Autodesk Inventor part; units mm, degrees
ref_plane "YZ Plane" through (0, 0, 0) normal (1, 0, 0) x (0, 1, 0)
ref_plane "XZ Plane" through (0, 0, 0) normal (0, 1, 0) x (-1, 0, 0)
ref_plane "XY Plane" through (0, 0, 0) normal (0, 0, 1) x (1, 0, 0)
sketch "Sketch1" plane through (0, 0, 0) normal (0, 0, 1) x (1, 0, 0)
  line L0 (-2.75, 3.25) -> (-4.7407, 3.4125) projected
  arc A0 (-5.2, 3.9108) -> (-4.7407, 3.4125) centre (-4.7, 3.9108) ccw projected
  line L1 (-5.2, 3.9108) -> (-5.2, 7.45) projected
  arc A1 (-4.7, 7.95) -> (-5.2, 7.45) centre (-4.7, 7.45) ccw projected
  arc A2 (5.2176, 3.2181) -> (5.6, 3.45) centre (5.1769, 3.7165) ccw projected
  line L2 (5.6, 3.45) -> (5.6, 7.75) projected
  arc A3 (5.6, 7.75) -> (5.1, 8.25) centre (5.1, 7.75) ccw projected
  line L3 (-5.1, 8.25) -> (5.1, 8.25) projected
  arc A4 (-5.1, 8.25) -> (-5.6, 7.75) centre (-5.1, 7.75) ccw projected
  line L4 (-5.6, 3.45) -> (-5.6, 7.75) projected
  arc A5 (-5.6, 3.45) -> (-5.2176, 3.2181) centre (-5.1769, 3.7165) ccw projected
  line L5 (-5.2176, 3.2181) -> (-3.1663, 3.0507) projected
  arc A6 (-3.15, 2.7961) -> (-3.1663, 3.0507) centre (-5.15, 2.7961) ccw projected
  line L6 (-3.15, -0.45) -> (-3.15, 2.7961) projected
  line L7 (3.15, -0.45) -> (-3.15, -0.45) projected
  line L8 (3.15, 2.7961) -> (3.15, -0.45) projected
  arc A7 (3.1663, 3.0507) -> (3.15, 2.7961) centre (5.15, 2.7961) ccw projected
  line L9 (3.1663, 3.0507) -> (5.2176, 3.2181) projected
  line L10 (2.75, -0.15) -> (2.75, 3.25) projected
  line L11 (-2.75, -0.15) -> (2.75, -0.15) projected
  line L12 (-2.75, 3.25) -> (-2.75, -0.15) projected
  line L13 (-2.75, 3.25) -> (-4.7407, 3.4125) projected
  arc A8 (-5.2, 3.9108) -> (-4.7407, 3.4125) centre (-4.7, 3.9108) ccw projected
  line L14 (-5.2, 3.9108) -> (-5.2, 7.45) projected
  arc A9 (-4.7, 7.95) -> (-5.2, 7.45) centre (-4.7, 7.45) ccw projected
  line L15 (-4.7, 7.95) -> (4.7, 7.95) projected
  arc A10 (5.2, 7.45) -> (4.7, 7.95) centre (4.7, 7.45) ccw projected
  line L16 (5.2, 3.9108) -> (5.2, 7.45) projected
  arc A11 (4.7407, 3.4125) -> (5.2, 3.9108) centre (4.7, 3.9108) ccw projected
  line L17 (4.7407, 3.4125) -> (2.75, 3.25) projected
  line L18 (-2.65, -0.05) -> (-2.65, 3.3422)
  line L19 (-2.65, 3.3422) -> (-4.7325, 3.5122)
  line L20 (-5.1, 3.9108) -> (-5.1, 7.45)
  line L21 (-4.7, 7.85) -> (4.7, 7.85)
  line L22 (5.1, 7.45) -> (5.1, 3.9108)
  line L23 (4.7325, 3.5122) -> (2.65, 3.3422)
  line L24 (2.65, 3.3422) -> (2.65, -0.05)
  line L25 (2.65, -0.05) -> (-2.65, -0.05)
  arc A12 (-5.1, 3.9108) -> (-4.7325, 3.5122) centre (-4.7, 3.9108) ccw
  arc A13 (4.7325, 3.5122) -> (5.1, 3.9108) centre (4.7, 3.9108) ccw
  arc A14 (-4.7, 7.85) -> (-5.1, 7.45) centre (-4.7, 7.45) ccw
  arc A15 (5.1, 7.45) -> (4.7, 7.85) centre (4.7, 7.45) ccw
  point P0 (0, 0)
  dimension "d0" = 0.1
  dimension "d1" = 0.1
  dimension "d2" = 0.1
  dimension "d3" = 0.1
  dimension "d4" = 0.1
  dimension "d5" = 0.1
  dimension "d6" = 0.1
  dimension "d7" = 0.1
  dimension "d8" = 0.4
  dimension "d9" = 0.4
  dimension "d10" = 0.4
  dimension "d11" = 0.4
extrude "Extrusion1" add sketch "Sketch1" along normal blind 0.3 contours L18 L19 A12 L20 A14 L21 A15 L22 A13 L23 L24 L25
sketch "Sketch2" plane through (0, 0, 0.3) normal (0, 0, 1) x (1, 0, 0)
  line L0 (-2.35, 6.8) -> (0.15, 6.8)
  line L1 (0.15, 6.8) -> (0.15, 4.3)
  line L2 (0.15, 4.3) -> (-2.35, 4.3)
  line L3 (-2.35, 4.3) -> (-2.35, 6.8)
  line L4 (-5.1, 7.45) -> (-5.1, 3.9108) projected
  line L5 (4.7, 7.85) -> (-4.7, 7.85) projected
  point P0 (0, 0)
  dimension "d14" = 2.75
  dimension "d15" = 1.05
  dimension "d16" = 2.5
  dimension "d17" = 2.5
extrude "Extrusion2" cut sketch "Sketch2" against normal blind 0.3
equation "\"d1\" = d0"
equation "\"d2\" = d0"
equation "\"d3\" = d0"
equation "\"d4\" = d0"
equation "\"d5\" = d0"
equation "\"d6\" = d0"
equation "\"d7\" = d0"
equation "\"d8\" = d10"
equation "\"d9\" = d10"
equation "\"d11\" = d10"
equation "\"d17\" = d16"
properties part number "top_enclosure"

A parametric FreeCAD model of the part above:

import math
import FreeCAD as App
import Part
import Sketcher
Q = App.Units.Quantity


def add_polygon(sketch, points):
    """Adds a closed chain of lines whose ends are joined by coincident constraints."""
    first, n = sketch.GeometryCount, len(points)
    for a, b in zip(points, points[1:] + points[:1]):
        sketch.addGeometry(Part.LineSegment(App.Vector(*a, 0), App.Vector(*b, 0)), False)
    for i in range(n):
        sketch.addConstraint(Sketcher.Constraint("Coincident", first + i, 2, first + (i + 1) % n, 1))

doc = App.newDocument("Part")
params = doc.addObject("Spreadsheet::Sheet", "Params")
for row, (alias, value) in enumerate([
    ("sketch1_radius", "0.4 mm"),
    ("sketch1_width", "5.3 mm"),
    ("sketch1_width2", "9.4 mm"),
    ("pad1_length", "0.3 mm"),
    ("sketch2_width", "2.5 mm"),
    ("pocket1_length", "0.3 mm"),
], start=1):
    params.set(f"A{row}", alias)
    params.set(f"B{row}", "=" + value)
    params.setAlias(f"B{row}", alias)

body = doc.addObject("PartDesign::Body", "Body")

# Sketch on XY plane
sketch1 = body.newObject("Sketcher::SketchObject", "Sketch")
sketch1.AttachmentSupport = (doc.getObject("XY_Plane"), [""])
sketch1.MapMode = "FlatFace"
sketch1.addGeometry([
    Part.LineSegment(App.Vector(-2.65, 3.3422, 0), App.Vector(-2.65, -0.05, 0)),  # 0
    Part.LineSegment(App.Vector(-2.65, -0.05, 0), App.Vector(2.65, -0.05, 0)),  # 1
    Part.LineSegment(App.Vector(2.65, -0.05, 0), App.Vector(2.65, 3.3422, 0)),  # 2
    Part.LineSegment(App.Vector(2.65, 3.3422, 0), App.Vector(4.7325, 3.5122, 0)),  # 3
    Part.ArcOfCircle(Part.Circle(App.Vector(4.7, 3.9108, 0), App.Vector(0, 0, 1), 0.399923), math.radians(-85.338678), math.radians(0)),  # 4
    Part.LineSegment(App.Vector(5.1, 3.9108, 0), App.Vector(5.1, 7.45, 0)),  # 5
    Part.ArcOfCircle(Part.Circle(App.Vector(4.7, 7.45, 0), App.Vector(0, 0, 1), 0.4), math.radians(0), math.radians(90)),  # 6
    Part.LineSegment(App.Vector(4.7, 7.85, 0), App.Vector(-4.7, 7.85, 0)),  # 7
    Part.ArcOfCircle(Part.Circle(App.Vector(-4.7, 7.45, 0), App.Vector(0, 0, 1), 0.4), math.radians(90), math.radians(180)),  # 8
    Part.LineSegment(App.Vector(-5.1, 7.45, 0), App.Vector(-5.1, 3.9108, 0)),  # 9
    Part.ArcOfCircle(Part.Circle(App.Vector(-4.7, 3.9108, 0), App.Vector(0, 0, 1), 0.4), math.radians(180), math.radians(265.338678)),  # 10
    Part.LineSegment(App.Vector(-4.7325, 3.5122, 0), App.Vector(-2.65, 3.3422, 0)),  # 11
], False)
sketch1.addConstraint([
    Sketcher.Constraint("Coincident", 0, 2, 1, 1),
    Sketcher.Constraint("Coincident", 1, 2, 2, 1),
    Sketcher.Constraint("Coincident", 2, 2, 3, 1),
    Sketcher.Constraint("Tangent", 3, 2, 4, 1),
    Sketcher.Constraint("Tangent", 4, 2, 5, 1),
    Sketcher.Constraint("Tangent", 5, 2, 6, 1),
    Sketcher.Constraint("Tangent", 6, 2, 7, 1),
    Sketcher.Constraint("Tangent", 7, 2, 8, 1),
    Sketcher.Constraint("Tangent", 8, 2, 9, 1),
    Sketcher.Constraint("Tangent", 9, 2, 10, 1),
    Sketcher.Constraint("Tangent", 10, 2, 11, 1),
    Sketcher.Constraint("Coincident", 11, 2, 0, 1),
    Sketcher.Constraint("Vertical", 0),
    Sketcher.Constraint("Horizontal", 1),
    Sketcher.Constraint("Vertical", 2),
    Sketcher.Constraint("Vertical", 5),
    Sketcher.Constraint("Horizontal", 7),
    Sketcher.Constraint("Vertical", 9),
    Sketcher.Constraint("Equal", 4, 6),
    Sketcher.Constraint("Equal", 6, 8),
    Sketcher.Constraint("Equal", 8, 10),
    Sketcher.Constraint("Symmetric", 4, 3, 10, 3, -2),
    Sketcher.Constraint("Symmetric", 2, 2, 11, 2, -2),
    Sketcher.Constraint("Radius", 4, Q("0.4 mm")),
    Sketcher.Constraint("DistanceX", 1, 1, 1, 2, Q("5.3 mm")),
    Sketcher.Constraint("DistanceX", 7, 2, 7, 1, Q("9.4 mm")),
    Sketcher.Constraint("DistanceY", 0, 2, 8, 3, Q("7.5 mm")),
    Sketcher.Constraint("DistanceY", -1, 1, 6, 3, Q("7.45 mm")),
    Sketcher.Constraint("DistanceY", 2, 2, 3, 2, Q("0.17 mm")),
    Sketcher.Constraint("DistanceY", 0, 2, 0, 1, Q("3.3922 mm")),
])
sketch1.setExpression("Constraints[23]", "Params.sketch1_radius")
sketch1.setExpression("Constraints[24]", "Params.sketch1_width")
sketch1.setExpression("Constraints[25]", "Params.sketch1_width2")
pad1 = body.newObject("PartDesign::Pad", "Pad")
pad1.Profile = sketch1
pad1.setExpression("Length", "Params.pad1_length")

# Sketch on XY plane
sketch2 = body.newObject("Sketcher::SketchObject", "Sketch001")
sketch2.AttachmentSupport = (doc.getObject("XY_Plane"), [""])
sketch2.MapMode = "FlatFace"
sketch2.AttachmentOffset = App.Placement(App.Vector(0, 0, 0.3), App.Rotation())
add_polygon(sketch2, [(0.15, 6.8), (-2.35, 6.8), (-2.35, 4.3), (0.15, 4.3)])  # lines 0-3
sketch2.addConstraint([
    Sketcher.Constraint("Horizontal", 0),
    Sketcher.Constraint("Vertical", 1),
    Sketcher.Constraint("Horizontal", 2),
    Sketcher.Constraint("Vertical", 3),
    Sketcher.Constraint("Equal", 2, 1),
    Sketcher.Constraint("DistanceX", 0, 2, 0, 1, Q("2.5 mm")),
    Sketcher.Constraint("DistanceY", -1, 1, 0, 2, Q("6.8 mm")),
    Sketcher.Constraint("DistanceX", 0, 2, -1, 1, Q("2.35 mm")),
])
sketch2.setExpression("Constraints[9]", "Params.sketch2_width")
pocket1 = body.newObject("PartDesign::Pocket", "Pocket")
pocket1.Profile = sketch2
pocket1.setExpression("Length", "Params.pocket1_length")

doc.recompute()
